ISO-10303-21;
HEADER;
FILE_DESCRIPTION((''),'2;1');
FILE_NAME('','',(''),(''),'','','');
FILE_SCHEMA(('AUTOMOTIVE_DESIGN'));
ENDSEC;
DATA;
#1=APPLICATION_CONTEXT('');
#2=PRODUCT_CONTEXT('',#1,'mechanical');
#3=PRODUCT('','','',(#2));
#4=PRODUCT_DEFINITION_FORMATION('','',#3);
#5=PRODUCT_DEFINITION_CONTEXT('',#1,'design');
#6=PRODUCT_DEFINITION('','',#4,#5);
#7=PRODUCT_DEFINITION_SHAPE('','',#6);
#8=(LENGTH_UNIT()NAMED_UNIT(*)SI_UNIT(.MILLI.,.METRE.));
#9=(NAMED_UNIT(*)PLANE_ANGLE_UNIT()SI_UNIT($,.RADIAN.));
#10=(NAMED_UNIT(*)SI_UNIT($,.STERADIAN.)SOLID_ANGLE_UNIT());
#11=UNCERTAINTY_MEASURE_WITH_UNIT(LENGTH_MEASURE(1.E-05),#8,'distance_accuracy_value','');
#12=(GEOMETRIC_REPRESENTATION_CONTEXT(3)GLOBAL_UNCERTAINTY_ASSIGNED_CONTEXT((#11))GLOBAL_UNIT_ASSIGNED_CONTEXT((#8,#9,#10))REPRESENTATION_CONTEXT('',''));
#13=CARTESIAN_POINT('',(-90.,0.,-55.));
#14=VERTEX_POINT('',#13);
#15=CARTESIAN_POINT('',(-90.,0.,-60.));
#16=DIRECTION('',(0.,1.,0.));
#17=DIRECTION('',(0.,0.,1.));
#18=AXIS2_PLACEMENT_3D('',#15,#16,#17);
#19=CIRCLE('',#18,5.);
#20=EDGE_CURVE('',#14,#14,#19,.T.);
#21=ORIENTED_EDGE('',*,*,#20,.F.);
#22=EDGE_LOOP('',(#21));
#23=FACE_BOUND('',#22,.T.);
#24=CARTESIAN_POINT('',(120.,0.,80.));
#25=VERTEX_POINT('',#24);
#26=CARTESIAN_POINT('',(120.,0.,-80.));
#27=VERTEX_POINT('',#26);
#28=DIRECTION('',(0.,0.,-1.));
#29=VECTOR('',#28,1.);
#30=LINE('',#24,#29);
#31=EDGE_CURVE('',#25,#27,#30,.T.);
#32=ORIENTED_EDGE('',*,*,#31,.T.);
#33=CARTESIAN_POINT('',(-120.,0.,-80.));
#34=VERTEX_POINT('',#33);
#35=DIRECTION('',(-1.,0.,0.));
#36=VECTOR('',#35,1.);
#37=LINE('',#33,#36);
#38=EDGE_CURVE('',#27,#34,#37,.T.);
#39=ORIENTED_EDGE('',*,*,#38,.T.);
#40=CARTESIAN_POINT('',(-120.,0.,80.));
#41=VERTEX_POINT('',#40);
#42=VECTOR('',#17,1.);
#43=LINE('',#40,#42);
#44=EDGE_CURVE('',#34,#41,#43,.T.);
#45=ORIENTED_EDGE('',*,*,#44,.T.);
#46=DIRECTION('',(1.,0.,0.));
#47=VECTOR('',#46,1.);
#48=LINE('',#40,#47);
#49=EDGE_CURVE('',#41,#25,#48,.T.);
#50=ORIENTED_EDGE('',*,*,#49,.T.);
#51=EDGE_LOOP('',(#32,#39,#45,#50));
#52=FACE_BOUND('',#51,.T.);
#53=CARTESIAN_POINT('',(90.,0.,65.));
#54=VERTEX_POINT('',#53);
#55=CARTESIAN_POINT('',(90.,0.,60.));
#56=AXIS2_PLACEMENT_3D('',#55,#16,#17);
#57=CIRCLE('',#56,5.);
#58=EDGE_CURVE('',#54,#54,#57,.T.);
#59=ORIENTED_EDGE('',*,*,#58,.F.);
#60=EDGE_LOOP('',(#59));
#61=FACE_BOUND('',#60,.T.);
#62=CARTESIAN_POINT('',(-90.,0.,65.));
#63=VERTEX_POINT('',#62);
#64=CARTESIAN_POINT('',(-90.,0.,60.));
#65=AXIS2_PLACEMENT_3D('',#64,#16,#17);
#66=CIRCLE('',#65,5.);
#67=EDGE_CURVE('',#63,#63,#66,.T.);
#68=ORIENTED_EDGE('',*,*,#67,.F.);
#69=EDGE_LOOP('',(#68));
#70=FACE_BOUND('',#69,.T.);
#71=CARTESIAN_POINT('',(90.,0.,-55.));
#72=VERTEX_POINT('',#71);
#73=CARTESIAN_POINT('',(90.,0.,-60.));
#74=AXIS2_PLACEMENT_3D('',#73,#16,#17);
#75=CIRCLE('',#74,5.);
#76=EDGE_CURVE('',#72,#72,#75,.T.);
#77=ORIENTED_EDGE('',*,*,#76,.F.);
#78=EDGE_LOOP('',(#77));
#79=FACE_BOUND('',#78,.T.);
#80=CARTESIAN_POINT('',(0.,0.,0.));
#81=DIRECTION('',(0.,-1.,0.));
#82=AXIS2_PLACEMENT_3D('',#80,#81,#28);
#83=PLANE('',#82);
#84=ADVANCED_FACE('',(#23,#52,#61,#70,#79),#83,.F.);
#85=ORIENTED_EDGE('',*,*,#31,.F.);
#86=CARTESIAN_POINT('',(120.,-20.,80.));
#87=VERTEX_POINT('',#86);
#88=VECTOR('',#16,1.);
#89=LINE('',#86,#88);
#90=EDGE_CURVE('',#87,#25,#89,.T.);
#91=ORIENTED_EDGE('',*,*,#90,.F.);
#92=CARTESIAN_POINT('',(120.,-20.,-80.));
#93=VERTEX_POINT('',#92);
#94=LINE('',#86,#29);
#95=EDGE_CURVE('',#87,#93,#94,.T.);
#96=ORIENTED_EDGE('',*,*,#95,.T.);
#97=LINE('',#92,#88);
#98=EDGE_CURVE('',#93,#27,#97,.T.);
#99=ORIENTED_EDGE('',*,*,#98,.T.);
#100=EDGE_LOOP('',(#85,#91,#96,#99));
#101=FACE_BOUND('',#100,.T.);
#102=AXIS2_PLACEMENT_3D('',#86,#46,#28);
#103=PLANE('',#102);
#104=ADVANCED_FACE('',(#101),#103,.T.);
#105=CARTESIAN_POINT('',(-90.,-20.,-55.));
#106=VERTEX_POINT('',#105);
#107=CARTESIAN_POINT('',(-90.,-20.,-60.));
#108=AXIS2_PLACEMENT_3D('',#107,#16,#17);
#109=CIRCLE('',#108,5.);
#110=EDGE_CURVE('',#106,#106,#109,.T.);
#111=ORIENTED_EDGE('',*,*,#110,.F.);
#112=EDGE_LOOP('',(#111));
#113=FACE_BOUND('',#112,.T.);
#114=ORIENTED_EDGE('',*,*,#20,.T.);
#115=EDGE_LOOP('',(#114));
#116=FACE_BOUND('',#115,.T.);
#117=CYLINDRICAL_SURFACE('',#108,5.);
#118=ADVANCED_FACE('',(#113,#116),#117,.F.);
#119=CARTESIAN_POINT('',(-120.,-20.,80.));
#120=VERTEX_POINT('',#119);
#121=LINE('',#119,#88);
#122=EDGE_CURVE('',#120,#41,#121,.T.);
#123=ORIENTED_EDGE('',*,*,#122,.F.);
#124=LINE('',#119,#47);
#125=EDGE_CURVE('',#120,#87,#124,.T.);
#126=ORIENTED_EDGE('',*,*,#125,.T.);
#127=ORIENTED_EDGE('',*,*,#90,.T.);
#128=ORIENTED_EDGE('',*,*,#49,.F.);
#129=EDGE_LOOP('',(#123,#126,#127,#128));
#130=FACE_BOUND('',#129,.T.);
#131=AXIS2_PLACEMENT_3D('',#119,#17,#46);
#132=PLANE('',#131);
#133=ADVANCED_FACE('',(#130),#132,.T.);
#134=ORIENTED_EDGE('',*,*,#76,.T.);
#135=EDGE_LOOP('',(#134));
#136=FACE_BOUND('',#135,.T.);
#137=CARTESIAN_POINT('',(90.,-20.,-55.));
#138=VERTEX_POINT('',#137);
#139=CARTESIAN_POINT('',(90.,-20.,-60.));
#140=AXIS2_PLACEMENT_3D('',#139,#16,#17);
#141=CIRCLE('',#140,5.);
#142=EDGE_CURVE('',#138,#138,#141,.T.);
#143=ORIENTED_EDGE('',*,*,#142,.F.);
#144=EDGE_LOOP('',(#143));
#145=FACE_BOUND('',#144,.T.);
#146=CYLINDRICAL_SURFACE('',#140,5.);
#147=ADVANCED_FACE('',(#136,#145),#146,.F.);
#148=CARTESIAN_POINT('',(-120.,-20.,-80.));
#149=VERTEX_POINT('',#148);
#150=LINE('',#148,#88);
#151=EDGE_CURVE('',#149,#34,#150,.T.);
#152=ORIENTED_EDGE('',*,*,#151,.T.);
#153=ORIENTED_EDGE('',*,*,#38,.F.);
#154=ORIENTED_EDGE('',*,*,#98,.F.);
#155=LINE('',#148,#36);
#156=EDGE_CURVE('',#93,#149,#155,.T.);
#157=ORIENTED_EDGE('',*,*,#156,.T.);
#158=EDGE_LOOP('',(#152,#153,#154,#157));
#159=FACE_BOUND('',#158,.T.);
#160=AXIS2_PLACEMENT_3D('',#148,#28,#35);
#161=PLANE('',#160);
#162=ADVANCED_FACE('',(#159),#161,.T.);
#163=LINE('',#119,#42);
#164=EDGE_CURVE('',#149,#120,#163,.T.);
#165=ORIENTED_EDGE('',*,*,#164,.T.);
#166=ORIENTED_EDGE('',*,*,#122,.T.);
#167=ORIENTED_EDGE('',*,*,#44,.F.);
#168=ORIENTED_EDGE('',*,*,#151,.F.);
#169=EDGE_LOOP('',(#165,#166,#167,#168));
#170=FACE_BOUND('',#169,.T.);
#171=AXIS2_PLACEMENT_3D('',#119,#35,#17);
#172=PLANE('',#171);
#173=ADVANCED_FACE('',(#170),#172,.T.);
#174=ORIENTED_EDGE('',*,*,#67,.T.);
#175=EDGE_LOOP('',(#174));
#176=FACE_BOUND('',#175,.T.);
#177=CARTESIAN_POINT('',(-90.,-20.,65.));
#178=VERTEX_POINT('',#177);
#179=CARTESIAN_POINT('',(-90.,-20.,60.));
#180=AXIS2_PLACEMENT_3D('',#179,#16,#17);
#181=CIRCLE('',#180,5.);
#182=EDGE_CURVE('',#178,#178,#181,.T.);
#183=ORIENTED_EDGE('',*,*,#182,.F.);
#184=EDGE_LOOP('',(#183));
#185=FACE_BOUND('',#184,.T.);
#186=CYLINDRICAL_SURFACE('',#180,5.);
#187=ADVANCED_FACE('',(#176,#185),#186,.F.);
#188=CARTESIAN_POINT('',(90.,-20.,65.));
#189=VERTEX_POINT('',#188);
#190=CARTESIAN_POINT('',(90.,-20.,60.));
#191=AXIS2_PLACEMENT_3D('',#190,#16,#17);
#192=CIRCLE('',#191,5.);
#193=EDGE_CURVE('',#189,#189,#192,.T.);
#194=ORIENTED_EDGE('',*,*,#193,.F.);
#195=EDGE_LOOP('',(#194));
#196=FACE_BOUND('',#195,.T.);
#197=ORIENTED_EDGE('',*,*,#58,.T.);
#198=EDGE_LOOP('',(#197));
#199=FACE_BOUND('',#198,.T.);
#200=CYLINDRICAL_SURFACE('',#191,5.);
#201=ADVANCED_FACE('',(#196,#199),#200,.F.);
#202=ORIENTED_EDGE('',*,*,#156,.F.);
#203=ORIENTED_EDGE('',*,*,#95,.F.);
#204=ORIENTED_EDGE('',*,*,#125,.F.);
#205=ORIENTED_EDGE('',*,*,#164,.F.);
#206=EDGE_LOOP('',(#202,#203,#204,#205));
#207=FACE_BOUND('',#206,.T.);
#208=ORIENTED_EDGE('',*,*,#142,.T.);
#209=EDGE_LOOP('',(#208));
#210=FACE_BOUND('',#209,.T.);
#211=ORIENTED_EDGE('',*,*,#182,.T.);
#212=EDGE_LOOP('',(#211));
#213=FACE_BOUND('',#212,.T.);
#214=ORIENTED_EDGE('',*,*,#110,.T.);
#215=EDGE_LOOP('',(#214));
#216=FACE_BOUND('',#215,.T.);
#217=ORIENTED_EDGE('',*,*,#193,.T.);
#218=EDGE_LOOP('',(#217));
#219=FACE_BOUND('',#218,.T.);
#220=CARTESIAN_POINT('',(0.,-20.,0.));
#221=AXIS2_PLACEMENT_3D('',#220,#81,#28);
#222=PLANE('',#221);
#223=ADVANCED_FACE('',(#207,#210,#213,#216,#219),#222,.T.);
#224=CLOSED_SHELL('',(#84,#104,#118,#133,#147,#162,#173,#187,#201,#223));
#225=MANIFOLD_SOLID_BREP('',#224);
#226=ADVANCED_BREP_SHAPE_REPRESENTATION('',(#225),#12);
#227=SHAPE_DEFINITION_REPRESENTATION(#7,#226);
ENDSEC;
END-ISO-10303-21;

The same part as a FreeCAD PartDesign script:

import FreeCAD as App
import Part
import Sketcher

V = App.Vector

doc = App.newDocument("Part")
body = doc.addObject("PartDesign::Body", "Body")

sketch1 = body.newObject("Sketcher::SketchObject", "Sketch")
sketch1.AttachmentSupport = (doc.getObject("XZ_Plane"), [""])
sketch1.MapMode = "FlatFace"
sketch1.addGeometry([
    Part.LineSegment(V(-120, -80, 0), V(-120, 80, 0)),
    Part.LineSegment(V(-120, 80, 0), V(120, 80, 0)),
    Part.LineSegment(V(120, 80, 0), V(120, -80, 0)),
    Part.LineSegment(V(120, -80, 0), V(-120, -80, 0)),
], False)
sketch1.addConstraint([
    Sketcher.Constraint("Coincident", 0, 2, 1, 1),
    Sketcher.Constraint("Coincident", 1, 2, 2, 1),
    Sketcher.Constraint("Coincident", 2, 2, 3, 1),
    Sketcher.Constraint("Coincident", 3, 2, 0, 1),
    Sketcher.Constraint("Vertical", 0),
    Sketcher.Constraint("Horizontal", 1),
    Sketcher.Constraint("Vertical", 2),
    Sketcher.Constraint("Horizontal", 3),
    Sketcher.Constraint("Symmetric", 0, 2, 2, 2, -1, 1),
    Sketcher.Constraint("DistanceX", 1, 1, 1, 2, 240.0),
    Sketcher.Constraint("DistanceY", 0, 1, 0, 2, 160.0),
])
pad1 = body.newObject("PartDesign::Pad", "Pad")
pad1.Profile = sketch1
pad1.Length = 20

sketch2 = body.newObject("Sketcher::SketchObject", "Sketch001")
sketch2.AttachmentSupport = (doc.getObject("XZ_Plane"), [""])
sketch2.MapMode = "FlatFace"
sketch2.addGeometry([
    Part.Circle(V(90, -60, 0), V(0, 0, 1), 5),
    Part.Circle(V(-90, -60, 0), V(0, 0, 1), 5),
    Part.Circle(V(90, 60, 0), V(0, 0, 1), 5),
    Part.Circle(V(-90, 60, 0), V(0, 0, 1), 5),
], False)
sketch2.addConstraint([
    Sketcher.Constraint("Equal", 0, 1),
    Sketcher.Constraint("Equal", 1, 2),
    Sketcher.Constraint("Equal", 2, 3),
    Sketcher.Constraint("Symmetric", 1, 3, 2, 3, -1, 1),
    Sketcher.Constraint("Symmetric", 0, 3, 3, 3, -1, 1),
    Sketcher.Constraint("Symmetric", 0, 3, 1, 3, -2),
    Sketcher.Constraint("Diameter", 0, 10.0),
    Sketcher.Constraint("DistanceX", -1, 1, 0, 3, 90.0),
    Sketcher.Constraint("DistanceY", 0, 3, -1, 1, 60.0),
])
pocket1 = body.newObject("PartDesign::Pocket", "Pocket")
pocket1.Profile = sketch2
pocket1.Length = 20
pocket1.Reversed = True

doc.recompute()
